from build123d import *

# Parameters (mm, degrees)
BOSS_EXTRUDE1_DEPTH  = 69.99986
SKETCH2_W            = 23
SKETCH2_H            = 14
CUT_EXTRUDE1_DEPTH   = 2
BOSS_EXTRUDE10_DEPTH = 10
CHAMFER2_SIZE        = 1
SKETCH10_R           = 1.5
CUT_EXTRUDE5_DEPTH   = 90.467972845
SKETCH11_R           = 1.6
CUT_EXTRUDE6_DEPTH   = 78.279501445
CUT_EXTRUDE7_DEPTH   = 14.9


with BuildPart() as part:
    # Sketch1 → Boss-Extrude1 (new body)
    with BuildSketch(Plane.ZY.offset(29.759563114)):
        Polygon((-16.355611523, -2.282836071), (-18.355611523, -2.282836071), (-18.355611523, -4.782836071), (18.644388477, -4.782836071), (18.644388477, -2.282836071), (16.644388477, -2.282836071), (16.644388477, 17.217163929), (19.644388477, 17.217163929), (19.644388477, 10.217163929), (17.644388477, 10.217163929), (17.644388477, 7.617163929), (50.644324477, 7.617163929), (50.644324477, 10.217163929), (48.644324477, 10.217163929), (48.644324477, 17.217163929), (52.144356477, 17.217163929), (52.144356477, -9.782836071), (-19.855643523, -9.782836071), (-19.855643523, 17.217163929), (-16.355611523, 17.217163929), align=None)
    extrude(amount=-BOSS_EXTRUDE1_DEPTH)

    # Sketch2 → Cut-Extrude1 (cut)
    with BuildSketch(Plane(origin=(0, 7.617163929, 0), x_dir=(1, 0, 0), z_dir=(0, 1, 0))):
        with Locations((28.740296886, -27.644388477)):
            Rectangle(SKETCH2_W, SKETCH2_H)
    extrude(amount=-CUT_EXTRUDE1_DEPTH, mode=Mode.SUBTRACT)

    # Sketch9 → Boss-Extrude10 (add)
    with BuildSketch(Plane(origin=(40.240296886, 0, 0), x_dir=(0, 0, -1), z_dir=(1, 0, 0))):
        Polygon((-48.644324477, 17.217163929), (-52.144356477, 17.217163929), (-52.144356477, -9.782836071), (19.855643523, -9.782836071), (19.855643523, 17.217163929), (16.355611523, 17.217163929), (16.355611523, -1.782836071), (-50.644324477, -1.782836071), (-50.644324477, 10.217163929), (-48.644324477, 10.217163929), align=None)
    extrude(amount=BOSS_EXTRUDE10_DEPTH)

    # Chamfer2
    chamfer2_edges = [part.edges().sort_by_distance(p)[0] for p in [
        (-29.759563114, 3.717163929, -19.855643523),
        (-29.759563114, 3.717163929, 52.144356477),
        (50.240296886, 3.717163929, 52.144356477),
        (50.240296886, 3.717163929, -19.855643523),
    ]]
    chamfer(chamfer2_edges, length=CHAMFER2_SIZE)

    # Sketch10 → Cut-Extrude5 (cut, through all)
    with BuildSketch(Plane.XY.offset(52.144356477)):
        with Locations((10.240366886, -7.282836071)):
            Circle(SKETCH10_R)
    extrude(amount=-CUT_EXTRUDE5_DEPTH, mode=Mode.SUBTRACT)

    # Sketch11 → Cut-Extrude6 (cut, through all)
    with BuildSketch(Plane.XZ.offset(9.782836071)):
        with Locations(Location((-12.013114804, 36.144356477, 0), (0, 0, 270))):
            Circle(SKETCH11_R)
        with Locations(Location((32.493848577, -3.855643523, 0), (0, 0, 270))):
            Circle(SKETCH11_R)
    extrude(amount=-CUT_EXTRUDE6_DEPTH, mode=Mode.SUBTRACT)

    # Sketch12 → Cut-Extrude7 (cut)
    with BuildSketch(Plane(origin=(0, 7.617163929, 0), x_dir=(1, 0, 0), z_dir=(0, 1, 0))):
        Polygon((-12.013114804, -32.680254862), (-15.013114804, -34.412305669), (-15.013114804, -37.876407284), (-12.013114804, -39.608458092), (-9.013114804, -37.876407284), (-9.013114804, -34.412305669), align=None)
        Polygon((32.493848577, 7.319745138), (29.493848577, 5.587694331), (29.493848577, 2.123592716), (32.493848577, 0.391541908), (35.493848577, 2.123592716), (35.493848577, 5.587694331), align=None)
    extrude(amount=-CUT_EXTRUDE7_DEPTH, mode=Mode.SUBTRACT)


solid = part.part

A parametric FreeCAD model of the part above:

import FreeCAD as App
import Part
import Sketcher
from FreeCAD import Vector
Q = App.Units.Quantity


def edges_at(feature, points):
    """Names of the edges that pass closest to the given points."""
    edges = feature.Shape.Edges
    near = lambda p: min(range(len(edges)), key=lambda i: edges[i].distToShape(Part.Vertex(*p))[0])
    return sorted({f"Edge{near(p) + 1}" for p in points})

doc = App.newDocument("Part")
body = doc.addObject("PartDesign::Body", "Body")

# Sketch on YZ plane
sketch1 = doc.addObject("Sketcher::SketchObject", "Sketch")
body.addObject(sketch1)
sketch1.AttachmentSupport = (doc.YZ_Plane, [""])
sketch1.MapMode = "FlatFace"
sketch1.AttachmentOffset = App.Placement(Vector(0, 0, -29.759563), App.Rotation())
sketch1.addGeometry([
    Part.LineSegment(Vector(-2.3, -18.4, 0), Vector(-2.3, -16.4, 0)),  # 0
    Part.LineSegment(Vector(-2.3, -16.4, 0), Vector(17.2, -16.4, 0)),  # 1
    Part.LineSegment(Vector(17.2, -16.4, 0), Vector(17.2, -19.9, 0)),  # 2
    Part.LineSegment(Vector(17.2, -19.9, 0), Vector(-9.8, -19.9, 0)),  # 3
    Part.LineSegment(Vector(-9.8, -19.9, 0), Vector(-9.8, 52.1, 0)),  # 4
    Part.LineSegment(Vector(-9.8, 52.1, 0), Vector(17.2, 52.1, 0)),  # 5
    Part.LineSegment(Vector(17.2, 52.1, 0), Vector(17.2, 48.6, 0)),  # 6
    Part.LineSegment(Vector(17.2, 48.6, 0), Vector(10.2, 48.6, 0)),  # 7
    Part.LineSegment(Vector(10.2, 48.6, 0), Vector(10.2, 50.6, 0)),  # 8
    Part.LineSegment(Vector(10.2, 50.6, 0), Vector(7.6, 50.6, 0)),  # 9
    Part.LineSegment(Vector(7.6, 50.6, 0), Vector(7.6, 17.6, 0)),  # 10
    Part.LineSegment(Vector(7.6, 17.6, 0), Vector(10.2, 17.6, 0)),  # 11
    Part.LineSegment(Vector(10.2, 17.6, 0), Vector(10.2, 19.6, 0)),  # 12
    Part.LineSegment(Vector(10.2, 19.6, 0), Vector(17.2, 19.6, 0)),  # 13
    Part.LineSegment(Vector(17.2, 19.6, 0), Vector(17.2, 16.6, 0)),  # 14
    Part.LineSegment(Vector(17.2, 16.6, 0), Vector(-2.3, 16.6, 0)),  # 15
    Part.LineSegment(Vector(-2.3, 16.6, 0), Vector(-2.3, 18.6, 0)),  # 16
    Part.LineSegment(Vector(-2.3, 18.6, 0), Vector(-4.8, 18.6, 0)),  # 17
    Part.LineSegment(Vector(-4.8, 18.6, 0), Vector(-4.8, -18.4, 0)),  # 18
    Part.LineSegment(Vector(-4.8, -18.4, 0), Vector(-2.3, -18.4, 0)),  # 19
], False)
sketch1.addConstraint([
    Sketcher.Constraint("Coincident", 0, 2, 1, 1),
    Sketcher.Constraint("Coincident", 1, 2, 2, 1),
    Sketcher.Constraint("Coincident", 2, 2, 3, 1),
    Sketcher.Constraint("Coincident", 3, 2, 4, 1),
    Sketcher.Constraint("Coincident", 4, 2, 5, 1),
    Sketcher.Constraint("Coincident", 5, 2, 6, 1),
    Sketcher.Constraint("Coincident", 6, 2, 7, 1),
    Sketcher.Constraint("Coincident", 7, 2, 8, 1),
    Sketcher.Constraint("Coincident", 8, 2, 9, 1),
    Sketcher.Constraint("Coincident", 9, 2, 10, 1),
    Sketcher.Constraint("Coincident", 10, 2, 11, 1),
    Sketcher.Constraint("Coincident", 11, 2, 12, 1),
    Sketcher.Constraint("Coincident", 12, 2, 13, 1),
    Sketcher.Constraint("Coincident", 13, 2, 14, 1),
    Sketcher.Constraint("Coincident", 14, 2, 15, 1),
    Sketcher.Constraint("Coincident", 15, 2, 16, 1),
    Sketcher.Constraint("Coincident", 16, 2, 17, 1),
    Sketcher.Constraint("Coincident", 17, 2, 18, 1),
    Sketcher.Constraint("Coincident", 18, 2, 19, 1),
    Sketcher.Constraint("Coincident", 19, 2, 0, 1),
    Sketcher.Constraint("Vertical", 0),
    Sketcher.Constraint("Horizontal", 1),
    Sketcher.Constraint("Vertical", 2),
    Sketcher.Constraint("Horizontal", 3),
    Sketcher.Constraint("Vertical", 4),
    Sketcher.Constraint("Horizontal", 5),
    Sketcher.Constraint("Vertical", 6),
    Sketcher.Constraint("Horizontal", 7),
    Sketcher.Constraint("Vertical", 8),
    Sketcher.Constraint("Horizontal", 9),
    Sketcher.Constraint("Vertical", 10),
    Sketcher.Constraint("Horizontal", 11),
    Sketcher.Constraint("Vertical", 12),
    Sketcher.Constraint("Horizontal", 13),
    Sketcher.Constraint("Vertical", 14),
    Sketcher.Constraint("Horizontal", 15),
    Sketcher.Constraint("Vertical", 16),
    Sketcher.Constraint("Horizontal", 17),
    Sketcher.Constraint("Vertical", 18),
    Sketcher.Constraint("Horizontal", 19),
    Sketcher.Constraint("Vertical", 2, 2, 5, 2),
    Sketcher.Constraint("Vertical", 8, 2, 11, 2),
    Sketcher.Constraint("Vertical", 6, 2, 13, 2),
    Sketcher.Constraint("Vertical", 0, 2, 15, 2),
    Sketcher.Constraint("Equal", 2, 6),
    Sketcher.Constraint("Equal", 0, 8),
    Sketcher.Constraint("Equal", 8, 12),
    Sketcher.Constraint("Equal", 12, 16),
    Sketcher.Constraint("DistanceX", 3, 2, 3, 1, 27.0),
    Sketcher.Constraint("DistanceX", 7, 2, 7, 1, 7.0),
    Sketcher.Constraint("DistanceY", 0, 1, 0, 2, 2.0),
    Sketcher.Constraint("DistanceY", 4, 1, 4, 2, 72.0),
    Sketcher.Constraint("DistanceY", 14, 2, 14, 1, 3.0),
    Sketcher.Constraint("DistanceY", 18, 2, 18, 1, 37.0),
    Sketcher.Constraint("DistanceX", 1, 1, 1, 2, 19.5),
    Sketcher.Constraint("DistanceX", 9, 2, 9, 1, 2.6),
    Sketcher.Constraint("DistanceX", 17, 2, 17, 1, 2.5),
    Sketcher.Constraint("DistanceY", 2, 2, 2, 1, 3.500032),
    Sketcher.Constraint("DistanceY", 0, 2, -1, 1, 16.355612),
    Sketcher.Constraint("DistanceX", 0, 2, -1, 1, 2.282836),
])
pad1 = doc.addObject("PartDesign::Pad", "Pad")
body.addObject(pad1)
pad1.Profile = sketch1
pad1.Length = 69.99986

# Sketch on XZ plane
sketch2 = doc.addObject("Sketcher::SketchObject", "Sketch001")
body.addObject(sketch2)
sketch2.AttachmentSupport = (doc.XZ_Plane, [""])
sketch2.MapMode = "FlatFace"
sketch2.AttachmentOffset = App.Placement(Vector(0, 0, -7.617164), App.Rotation())
sketch2.addGeometry([
    Part.LineSegment(Vector(17, 21, 0), Vector(17, 35, 0)),
    Part.LineSegment(Vector(17, 35, 0), Vector(40, 35, 0)),
    Part.LineSegment(Vector(40, 35, 0), Vector(40, 21, 0)),
    Part.LineSegment(Vector(40, 21, 0), Vector(17, 21, 0)),
], False)
sketch2.addConstraint([
    Sketcher.Constraint("Coincident", 0, 2, 1, 1),
    Sketcher.Constraint("Coincident", 1, 2, 2, 1),
    Sketcher.Constraint("Coincident", 2, 2, 3, 1),
    Sketcher.Constraint("Coincident", 3, 2, 0, 1),
    Sketcher.Constraint("Vertical", 0),
    Sketcher.Constraint("Horizontal", 1),
    Sketcher.Constraint("Vertical", 2),
    Sketcher.Constraint("Horizontal", 3),
    Sketcher.Constraint("DistanceX", 1, 1, 1, 2, 23.0),
    Sketcher.Constraint("DistanceY", 0, 1, 0, 2, 14.0),
    Sketcher.Constraint("DistanceY", -1, 1, 0, 2, 34.644388),
    Sketcher.Constraint("DistanceX", -1, 1, 0, 2, 17.240297),
])
pocket1 = doc.addObject("PartDesign::Pocket", "Pocket")
body.addObject(pocket1)
pocket1.Profile = sketch2
pocket1.Length = 2
pocket1.Reversed = True

# Sketch on YZ plane
sketch3 = doc.addObject("Sketcher::SketchObject", "Sketch002")
body.addObject(sketch3)
sketch3.AttachmentSupport = (doc.YZ_Plane, [""])
sketch3.MapMode = "FlatFace"
sketch3.AttachmentOffset = App.Placement(Vector(0, 0, 40.240297), App.Rotation())
sketch3.addGeometry([
    Part.LineSegment(Vector(17.2, 48.6, 0), Vector(17.2, 52.1, 0)),  # 0
    Part.LineSegment(Vector(17.2, 52.1, 0), Vector(-9.8, 52.1, 0)),  # 1
    Part.LineSegment(Vector(-9.8, 52.1, 0), Vector(-9.8, -19.9, 0)),  # 2
    Part.LineSegment(Vector(-9.8, -19.9, 0), Vector(17.2, -19.9, 0)),  # 3
    Part.LineSegment(Vector(17.2, -19.9, 0), Vector(17.2, -16.4, 0)),  # 4
    Part.LineSegment(Vector(17.2, -16.4, 0), Vector(-1.8, -16.4, 0)),  # 5
    Part.LineSegment(Vector(-1.8, -16.4, 0), Vector(-1.8, 50.6, 0)),  # 6
    Part.LineSegment(Vector(-1.8, 50.6, 0), Vector(10.2, 50.6, 0)),  # 7
    Part.LineSegment(Vector(10.2, 50.6, 0), Vector(10.2, 48.6, 0)),  # 8
    Part.LineSegment(Vector(10.2, 48.6, 0), Vector(17.2, 48.6, 0)),  # 9
], False)
sketch3.addConstraint([
    Sketcher.Constraint("Coincident", 0, 2, 1, 1),
    Sketcher.Constraint("Coincident", 1, 2, 2, 1),
    Sketcher.Constraint("Coincident", 2, 2, 3, 1),
    Sketcher.Constraint("Coincident", 3, 2, 4, 1),
    Sketcher.Constraint("Coincident", 4, 2, 5, 1),
    Sketcher.Constraint("Coincident", 5, 2, 6, 1),
    Sketcher.Constraint("Coincident", 6, 2, 7, 1),
    Sketcher.Constraint("Coincident", 7, 2, 8, 1),
    Sketcher.Constraint("Coincident", 8, 2, 9, 1),
    Sketcher.Constraint("Coincident", 9, 2, 0, 1),
    Sketcher.Constraint("Vertical", 0),
    Sketcher.Constraint("Horizontal", 1),
    Sketcher.Constraint("Vertical", 2),
    Sketcher.Constraint("Horizontal", 3),
    Sketcher.Constraint("Vertical", 4),
    Sketcher.Constraint("Horizontal", 5),
    Sketcher.Constraint("Vertical", 6),
    Sketcher.Constraint("Horizontal", 7),
    Sketcher.Constraint("Vertical", 8),
    Sketcher.Constraint("Horizontal", 9),
    Sketcher.Constraint("Vertical", 0, 2, 3, 2),
    Sketcher.Constraint("Equal", 0, 4),
    Sketcher.Constraint("DistanceX", 1, 2, 1, 1, 27.0),
    Sketcher.Constraint("DistanceX", 5, 2, 5, 1, 19.0),
    Sketcher.Constraint("DistanceX", 7, 1, 7, 2, 12.0),
    Sketcher.Constraint("DistanceY", 2, 2, 2, 1, 72.0),
    Sketcher.Constraint("DistanceY", 8, 2, 8, 1, 2.0),
    Sketcher.Constraint("DistanceY", 0, 1, 0, 2, 3.500032),
    Sketcher.Constraint("DistanceY", 4, 2, -1, 1, 16.355612),
    Sketcher.Constraint("DistanceX", -1, 1, 0, 2, 17.217164),
])
pad2 = doc.addObject("PartDesign::Pad", "Pad001")
body.addObject(pad2)
pad2.Profile = sketch3
pad2.Length = 10
doc.recompute()

chamfer = doc.addObject("PartDesign::Chamfer", "Chamfer")
body.addObject(chamfer)
chamfer.Base = (pad2, edges_at(pad2, [
    (-29.76, 3.717, -19.856),
    (-29.76, 3.717, 52.144),
    (50.24, 3.717, 52.144),
    (50.24, 3.717, -19.856),
]))
chamfer.Size = 1

# Sketch on XY plane
sketch4 = doc.addObject("Sketcher::SketchObject", "Sketch003")
body.addObject(sketch4)
sketch4.AttachmentSupport = (doc.XY_Plane, [""])
sketch4.MapMode = "FlatFace"
sketch4.AttachmentOffset = App.Placement(Vector(0, 0, 52.144356), App.Rotation())
sketch4.addGeometry(Part.Circle(Vector(10.2, -7.3, 0), Vector(0, 0, 1), 1.5), False)
sketch4.addConstraint([
    Sketcher.Constraint("Diameter", 0, 3.0),
    Sketcher.Constraint("DistanceX", -1, 1, 0, 3, 10.240367),
    Sketcher.Constraint("DistanceY", 0, 3, -1, 1, 7.282836),
])
pocket2 = doc.addObject("PartDesign::Pocket", "Pocket001")
body.addObject(pocket2)
pocket2.Profile = sketch4
pocket2.Type = "ThroughAll"

# Sketch on XZ plane
sketch5 = doc.addObject("Sketcher::SketchObject", "Sketch004")
body.addObject(sketch5)
sketch5.AttachmentSupport = (doc.XZ_Plane, [""])
sketch5.MapMode = "FlatFace"
sketch5.AttachmentOffset = App.Placement(Vector(0, 0, 9.782836), App.Rotation())
sketch5.addGeometry([
    Part.Circle(Vector(-12, 36.1, 0), Vector(0, 0, 1), 1.6),
    Part.Circle(Vector(32.5, -3.9, 0), Vector(0, 0, 1), 1.6),
], False)
sketch5.addConstraint([
    Sketcher.Constraint("Equal", 0, 1),
    Sketcher.Constraint("Diameter", 0, 3.2),
    Sketcher.Constraint("DistanceY", 1, 3, 0, 3, 40.0),
    Sketcher.Constraint("DistanceX", -1, 1, 1, 3, 32.493849),
    Sketcher.Constraint("DistanceX", 0, 3, -1, 1, 12.013115),
    Sketcher.Constraint("DistanceY", -1, 1, 0, 3, 36.144356),
])
pocket3 = doc.addObject("PartDesign::Pocket", "Pocket002")
body.addObject(pocket3)
pocket3.Profile = sketch5
pocket3.Type = "ThroughAll"

# Sketch on XZ plane
sketch6 = doc.addObject("Sketcher::SketchObject", "Sketch005")
body.addObject(sketch6)
sketch6.AttachmentSupport = (doc.XZ_Plane, [""])
sketch6.MapMode = "FlatFace"
sketch6.AttachmentOffset = App.Placement(Vector(0, 0, -7.617164), App.Rotation())
sketch6.addGeometry([
    Part.LineSegment(Vector(-12, 32.7, 0), Vector(-15, 34.4, 0)),  # 0
    Part.LineSegment(Vector(-15, 34.4, 0), Vector(-15, 37.9, 0)),  # 1
    Part.LineSegment(Vector(-15, 37.9, 0), Vector(-12, 39.6, 0)),  # 2
    Part.LineSegment(Vector(-12, 39.6, 0), Vector(-9, 37.9, 0)),  # 3
    Part.LineSegment(Vector(-9, 37.9, 0), Vector(-9, 34.4, 0)),  # 4
    Part.LineSegment(Vector(-9, 34.4, 0), Vector(-12, 32.7, 0)),  # 5
    Part.LineSegment(Vector(32.5, -7.3, 0), Vector(29.5, -5.6, 0)),  # 6
    Part.LineSegment(Vector(29.5, -5.6, 0), Vector(29.5, -2.1, 0)),  # 7
    Part.LineSegment(Vector(29.5, -2.1, 0), Vector(32.5, -0.4, 0)),  # 8
    Part.LineSegment(Vector(32.5, -0.4, 0), Vector(35.5, -2.1, 0)),  # 9
    Part.LineSegment(Vector(35.5, -2.1, 0), Vector(35.5, -5.6, 0)),  # 10
    Part.LineSegment(Vector(35.5, -5.6, 0), Vector(32.5, -7.3, 0)),  # 11
], False)
sketch6.addConstraint([
    Sketcher.Constraint("Coincident", 0, 2, 1, 1),
    Sketcher.Constraint("Coincident", 1, 2, 2, 1),
    Sketcher.Constraint("Coincident", 2, 2, 3, 1),
    Sketcher.Constraint("Coincident", 3, 2, 4, 1),
    Sketcher.Constraint("Coincident", 4, 2, 5, 1),
    Sketcher.Constraint("Coincident", 5, 2, 0, 1),
    Sketcher.Constraint("Coincident", 6, 2, 7, 1),
    Sketcher.Constraint("Coincident", 7, 2, 8, 1),
    Sketcher.Constraint("Coincident", 8, 2, 9, 1),
    Sketcher.Constraint("Coincident", 9, 2, 10, 1),
    Sketcher.Constraint("Coincident", 10, 2, 11, 1),
    Sketcher.Constraint("Coincident", 11, 2, 6, 1),
    Sketcher.Constraint("Vertical", 1),
    Sketcher.Constraint("Vertical", 4),
    Sketcher.Constraint("Vertical", 7),
    Sketcher.Constraint("Vertical", 10),
    Sketcher.Constraint("Parallel", 0, 3),
    Sketcher.Constraint("Parallel", 2, 5),
    Sketcher.Constraint("Parallel", 3, 6),
    Sketcher.Constraint("Parallel", 5, 8),
    Sketcher.Constraint("Parallel", 6, 9),
    Sketcher.Constraint("Parallel", 8, 11),
    Sketcher.Constraint("Horizontal", 1, 2, 3, 2),
    Sketcher.Constraint("Horizontal", 0, 2, 4, 2),
    Sketcher.Constraint("Horizontal", 7, 2, 9, 2),
    Sketcher.Constraint("Horizontal", 6, 2, 10, 2),
    Sketcher.Constraint("Vertical", 2, 2, 5, 2),
    Sketcher.Constraint("Equal", 4, 7),
    Sketcher.Constraint("Equal", 5, 6),
    Sketcher.Constraint("Angle", 0, Q("150 deg")),
    Sketcher.Constraint("DistanceX", 1, 2, 2, 2, 3.0),
    Sketcher.Constraint("DistanceY", 6, 2, 4, 2, 40.0),
    Sketcher.Constraint("DistanceY", 1, 1, 1, 2, 3.464102),
    Sketcher.Constraint("DistanceY", -1, 1, 2, 2, 39.608458),
    Sketcher.Constraint("DistanceX", -1, 1, 6, 2, 29.493849),
    Sketcher.Constraint("DistanceX", 0, 2, -1, 1, 15.013115),
])
pocket4 = doc.addObject("PartDesign::Pocket", "Pocket003")
body.addObject(pocket4)
pocket4.Profile = sketch6
pocket4.Length = 14.9
pocket4.Reversed = True

doc.recompute()
